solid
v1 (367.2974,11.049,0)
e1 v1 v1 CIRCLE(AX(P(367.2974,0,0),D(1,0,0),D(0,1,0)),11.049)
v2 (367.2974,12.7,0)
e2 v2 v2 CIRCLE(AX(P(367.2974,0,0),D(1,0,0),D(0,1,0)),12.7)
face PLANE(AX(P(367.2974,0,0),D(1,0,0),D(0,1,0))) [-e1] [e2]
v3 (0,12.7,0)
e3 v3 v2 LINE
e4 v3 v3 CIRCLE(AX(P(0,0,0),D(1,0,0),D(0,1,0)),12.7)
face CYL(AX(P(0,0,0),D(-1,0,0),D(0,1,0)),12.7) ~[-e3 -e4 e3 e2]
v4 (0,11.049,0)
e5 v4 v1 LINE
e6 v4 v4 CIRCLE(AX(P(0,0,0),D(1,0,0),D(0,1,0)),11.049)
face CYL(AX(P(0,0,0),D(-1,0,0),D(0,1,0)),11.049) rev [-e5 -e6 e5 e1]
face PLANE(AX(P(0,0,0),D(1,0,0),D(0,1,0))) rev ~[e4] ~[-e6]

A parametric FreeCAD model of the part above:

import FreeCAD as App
import Part
import Sketcher

V = App.Vector
Q = App.Units.Quantity

doc = App.newDocument("Part")
body = doc.addObject("PartDesign::Body", "Body")

sketch1 = body.newObject("Sketcher::SketchObject", "Sketch")
sketch1.AttachmentSupport = (doc.getObject("YZ_Plane"), [""])
sketch1.MapMode = "FlatFace"
sketch1.addGeometry([
    Part.Circle(V(0, 0, 0), V(0, 0, 1), 13),
    Part.Circle(V(0, 0, 0), V(0, 0, 1), 11),
], False)
sketch1.addConstraint([
    Sketcher.Constraint("Coincident", 0, 3, -1, 1),
    Sketcher.Constraint("Coincident", 1, 3, -1, 1),
    Sketcher.Constraint("Diameter", 0, Q("1 in")),
    Sketcher.Constraint("Diameter", 1, Q("0.87 in")),
])
pad1 = body.newObject("PartDesign::Pad", "Pad")
pad1.Profile = sketch1
pad1.Length = 367.2974

doc.recompute()
